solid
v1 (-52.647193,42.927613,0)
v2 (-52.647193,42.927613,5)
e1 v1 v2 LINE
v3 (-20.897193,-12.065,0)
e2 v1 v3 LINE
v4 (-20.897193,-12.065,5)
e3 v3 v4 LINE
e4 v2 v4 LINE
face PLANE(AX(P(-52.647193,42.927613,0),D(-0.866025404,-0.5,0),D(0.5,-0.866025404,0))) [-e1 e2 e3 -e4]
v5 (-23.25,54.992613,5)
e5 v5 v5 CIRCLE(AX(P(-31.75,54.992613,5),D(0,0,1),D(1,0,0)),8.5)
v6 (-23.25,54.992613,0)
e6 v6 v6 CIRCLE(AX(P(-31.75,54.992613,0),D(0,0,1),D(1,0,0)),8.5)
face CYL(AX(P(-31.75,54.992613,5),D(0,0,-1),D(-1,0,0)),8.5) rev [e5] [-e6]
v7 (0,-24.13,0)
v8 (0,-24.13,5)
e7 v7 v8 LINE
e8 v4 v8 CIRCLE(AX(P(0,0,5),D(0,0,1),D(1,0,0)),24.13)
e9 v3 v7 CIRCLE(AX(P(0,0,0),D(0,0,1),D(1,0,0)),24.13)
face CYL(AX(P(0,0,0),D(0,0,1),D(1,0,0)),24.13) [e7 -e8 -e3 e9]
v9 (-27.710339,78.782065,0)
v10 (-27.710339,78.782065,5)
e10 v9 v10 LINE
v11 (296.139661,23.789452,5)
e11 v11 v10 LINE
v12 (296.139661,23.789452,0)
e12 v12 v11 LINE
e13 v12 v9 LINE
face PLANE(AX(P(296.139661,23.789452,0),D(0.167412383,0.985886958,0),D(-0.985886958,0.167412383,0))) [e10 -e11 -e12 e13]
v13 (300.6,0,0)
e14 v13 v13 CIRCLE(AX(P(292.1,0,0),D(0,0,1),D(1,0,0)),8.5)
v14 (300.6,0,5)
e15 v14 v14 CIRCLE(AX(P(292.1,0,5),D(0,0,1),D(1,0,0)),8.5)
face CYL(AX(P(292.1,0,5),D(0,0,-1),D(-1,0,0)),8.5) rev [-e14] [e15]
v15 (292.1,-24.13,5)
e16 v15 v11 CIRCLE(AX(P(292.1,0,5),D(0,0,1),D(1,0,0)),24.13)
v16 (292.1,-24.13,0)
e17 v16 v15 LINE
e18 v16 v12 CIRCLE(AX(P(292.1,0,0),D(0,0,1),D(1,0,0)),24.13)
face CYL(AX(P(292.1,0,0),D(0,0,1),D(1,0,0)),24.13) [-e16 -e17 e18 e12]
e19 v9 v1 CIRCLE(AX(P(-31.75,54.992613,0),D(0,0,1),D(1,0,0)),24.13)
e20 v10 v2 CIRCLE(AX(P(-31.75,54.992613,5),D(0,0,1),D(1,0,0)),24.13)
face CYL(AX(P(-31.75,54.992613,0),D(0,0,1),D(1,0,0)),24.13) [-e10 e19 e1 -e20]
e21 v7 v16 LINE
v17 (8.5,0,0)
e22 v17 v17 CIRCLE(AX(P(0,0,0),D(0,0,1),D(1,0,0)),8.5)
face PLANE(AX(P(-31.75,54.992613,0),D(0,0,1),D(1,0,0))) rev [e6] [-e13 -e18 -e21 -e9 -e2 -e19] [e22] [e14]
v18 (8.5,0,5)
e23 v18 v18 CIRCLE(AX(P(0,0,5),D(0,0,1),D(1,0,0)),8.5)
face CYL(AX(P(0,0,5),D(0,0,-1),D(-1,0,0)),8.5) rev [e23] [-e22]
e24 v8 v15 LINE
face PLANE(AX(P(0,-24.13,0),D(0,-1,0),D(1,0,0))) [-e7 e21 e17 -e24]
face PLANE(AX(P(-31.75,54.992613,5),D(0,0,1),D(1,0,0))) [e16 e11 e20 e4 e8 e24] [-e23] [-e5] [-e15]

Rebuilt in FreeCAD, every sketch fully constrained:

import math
import FreeCAD as App
import Part
import Sketcher

V = App.Vector
Q = App.Units.Quantity

doc = App.newDocument("Part")
body = doc.addObject("PartDesign::Body", "Body")

# Sketch on XY plane
sketch1 = body.newObject("Sketcher::SketchObject", "Sketch")
sketch1.AttachmentSupport = (doc.getObject("XY_Plane"), [""])
sketch1.MapMode = "FlatFace"
sketch1.addGeometry([
    Part.LineSegment(V(0, -32, 0), V(292, -32, 0)),  # 0
    Part.ArcOfCircle(Part.Circle(V(292, 0, 0), V(0, 0, 1), 32), math.radians(-90), math.radians(80)),  # 1
    Part.LineSegment(V(297, 31, 0), V(-26, 86, 0)),  # 2
    Part.ArcOfCircle(Part.Circle(V(-32, 55, 0), V(0, 0, 1), 32), math.radians(80), math.radians(210)),  # 3
    Part.LineSegment(V(-59, 39, 0), V(-27, -16, 0)),  # 4
    Part.ArcOfCircle(Part.Circle(V(0, 0, 0), V(0, 0, 1), 32), math.radians(-150), math.radians(-90)),  # 5
    Part.Circle(V(0, 0, 0), V(0, 0, 1), 8),  # 6
    Part.Circle(V(292, 0, 0), V(0, 0, 1), 8),  # 7
    Part.Circle(V(-32, 55, 0), V(0, 0, 1), 8),  # 8
], False)
sketch1.addConstraint([
    Sketcher.Constraint("Tangent", 0, 2, 1, 1),
    Sketcher.Constraint("Tangent", 1, 2, 2, 1),
    Sketcher.Constraint("Tangent", 2, 2, 3, 1),
    Sketcher.Constraint("Tangent", 3, 2, 4, 1),
    Sketcher.Constraint("Tangent", 4, 2, 5, 1),
    Sketcher.Constraint("Tangent", 5, 2, 0, 1),
    Sketcher.Constraint("Horizontal", 0),
    Sketcher.Constraint("Coincident", 5, 3, -1, 1),
    Sketcher.Constraint("Coincident", 6, 3, -1, 1),
    Sketcher.Constraint("Coincident", 7, 3, 1, 3),
    Sketcher.Constraint("Coincident", 8, 3, 3, 3),
    Sketcher.Constraint("Equal", 1, 3),
    Sketcher.Constraint("Equal", 3, 5),
    Sketcher.Constraint("Equal", 6, 7),
    Sketcher.Constraint("Equal", 7, 8),
    Sketcher.Constraint("Diameter", 6, Q("17 mm")),
    Sketcher.Constraint("Angle", 4, Q("-60 deg")),
    Sketcher.Constraint("Radius", 1, Q("31.75 mm")),
    Sketcher.Constraint("DistanceX", 0, 1, 0, 2, Q("292.1 mm")),
    Sketcher.Constraint("Distance", 4, Q("63.5 mm")),
])
pad1 = body.newObject("PartDesign::Pad", "Pad")
pad1.Profile = sketch1
pad1.Length = 5

# Sketch on XY plane
sketch2 = body.newObject("Sketcher::SketchObject", "Sketch001")
sketch2.AttachmentSupport = (doc.getObject("XY_Plane"), [""])
sketch2.MapMode = "FlatFace"
sketch2.AttachmentOffset = App.Placement(V(0, 0, 5), App.Rotation())
sketch2.addGeometry([
    Part.LineSegment(V(297, 31, 0), V(-26, 86, 0)),  # 0
    Part.ArcOfCircle(Part.Circle(V(-32, 55, 0), V(0, 0, 1), 32), math.radians(80), math.radians(210)),  # 1
    Part.LineSegment(V(-59, 39, 0), V(-27, -16, 0)),  # 2
    Part.ArcOfCircle(Part.Circle(V(0, 0, 0), V(0, 0, 1), 32), math.radians(-150), math.radians(-90)),  # 3
    Part.LineSegment(V(0, -32, 0), V(292, -32, 0)),  # 4
    Part.ArcOfCircle(Part.Circle(V(292, 0, 0), V(0, 0, 1), 32), math.radians(-90), math.radians(80)),  # 5
    Part.LineSegment(V(-28, 79, 0), V(296, 24, 0)),  # 6
    Part.ArcOfCircle(Part.Circle(V(292, 0, 0), V(0, 0, 1), 24), math.radians(-90), math.radians(80)),  # 7
    Part.LineSegment(V(292, -24, 0), V(0, -24, 0)),  # 8
    Part.ArcOfCircle(Part.Circle(V(0, 0, 0), V(0, 0, 1), 24), math.radians(-150), math.radians(-90)),  # 9
    Part.LineSegment(V(-21, -12, 0), V(-53, 43, 0)),  # 10
    Part.ArcOfCircle(Part.Circle(V(-32, 55, 0), V(0, 0, 1), 24), math.radians(80), math.radians(210)),  # 11
], False)
sketch2.addConstraint([
    Sketcher.Constraint("Tangent", 0, 2, 1, 1),
    Sketcher.Constraint("Tangent", 1, 2, 2, 1),
    Sketcher.Constraint("Tangent", 2, 2, 3, 1),
    Sketcher.Constraint("Tangent", 3, 2, 4, 1),
    Sketcher.Constraint("Tangent", 4, 2, 5, 1),
    Sketcher.Constraint("Tangent", 5, 2, 0, 1),
    Sketcher.Constraint("Tangent", 6, 2, 7, 2),
    Sketcher.Constraint("Tangent", 7, 1, 8, 1),
    Sketcher.Constraint("Tangent", 8, 2, 9, 2),
    Sketcher.Constraint("Tangent", 9, 1, 10, 1),
    Sketcher.Constraint("Tangent", 10, 2, 11, 2),
    Sketcher.Constraint("Tangent", 11, 1, 6, 1),
    Sketcher.Constraint("Horizontal", 4),
    Sketcher.Constraint("Horizontal", 8),
    Sketcher.Constraint("Coincident", 3, 3, -1, 1),
    Sketcher.Constraint("Coincident", 9, 3, -1, 1),
    Sketcher.Constraint("Coincident", 7, 3, 5, 3),
    Sketcher.Constraint("Coincident", 11, 3, 1, 3),
    Sketcher.Constraint("Equal", 1, 3),
    Sketcher.Constraint("Equal", 3, 5),
    Sketcher.Constraint("Equal", 9, 11),
    Sketcher.Constraint("Angle", 2, Q("-60 deg")),
    Sketcher.Constraint("Radius", 1, Q("31.75 mm")),
    Sketcher.Constraint("Radius", 7, Q("24.13 mm")),
    Sketcher.Constraint("DistanceX", 4, 1, 4, 2, Q("292.1 mm")),
    Sketcher.Constraint("Distance", 2, Q("63.5 mm")),
])
pocket1 = body.newObject("PartDesign::Pocket", "Pocket")
pocket1.Profile = sketch2
pocket1.Type = "ThroughAll"

doc.recompute()
